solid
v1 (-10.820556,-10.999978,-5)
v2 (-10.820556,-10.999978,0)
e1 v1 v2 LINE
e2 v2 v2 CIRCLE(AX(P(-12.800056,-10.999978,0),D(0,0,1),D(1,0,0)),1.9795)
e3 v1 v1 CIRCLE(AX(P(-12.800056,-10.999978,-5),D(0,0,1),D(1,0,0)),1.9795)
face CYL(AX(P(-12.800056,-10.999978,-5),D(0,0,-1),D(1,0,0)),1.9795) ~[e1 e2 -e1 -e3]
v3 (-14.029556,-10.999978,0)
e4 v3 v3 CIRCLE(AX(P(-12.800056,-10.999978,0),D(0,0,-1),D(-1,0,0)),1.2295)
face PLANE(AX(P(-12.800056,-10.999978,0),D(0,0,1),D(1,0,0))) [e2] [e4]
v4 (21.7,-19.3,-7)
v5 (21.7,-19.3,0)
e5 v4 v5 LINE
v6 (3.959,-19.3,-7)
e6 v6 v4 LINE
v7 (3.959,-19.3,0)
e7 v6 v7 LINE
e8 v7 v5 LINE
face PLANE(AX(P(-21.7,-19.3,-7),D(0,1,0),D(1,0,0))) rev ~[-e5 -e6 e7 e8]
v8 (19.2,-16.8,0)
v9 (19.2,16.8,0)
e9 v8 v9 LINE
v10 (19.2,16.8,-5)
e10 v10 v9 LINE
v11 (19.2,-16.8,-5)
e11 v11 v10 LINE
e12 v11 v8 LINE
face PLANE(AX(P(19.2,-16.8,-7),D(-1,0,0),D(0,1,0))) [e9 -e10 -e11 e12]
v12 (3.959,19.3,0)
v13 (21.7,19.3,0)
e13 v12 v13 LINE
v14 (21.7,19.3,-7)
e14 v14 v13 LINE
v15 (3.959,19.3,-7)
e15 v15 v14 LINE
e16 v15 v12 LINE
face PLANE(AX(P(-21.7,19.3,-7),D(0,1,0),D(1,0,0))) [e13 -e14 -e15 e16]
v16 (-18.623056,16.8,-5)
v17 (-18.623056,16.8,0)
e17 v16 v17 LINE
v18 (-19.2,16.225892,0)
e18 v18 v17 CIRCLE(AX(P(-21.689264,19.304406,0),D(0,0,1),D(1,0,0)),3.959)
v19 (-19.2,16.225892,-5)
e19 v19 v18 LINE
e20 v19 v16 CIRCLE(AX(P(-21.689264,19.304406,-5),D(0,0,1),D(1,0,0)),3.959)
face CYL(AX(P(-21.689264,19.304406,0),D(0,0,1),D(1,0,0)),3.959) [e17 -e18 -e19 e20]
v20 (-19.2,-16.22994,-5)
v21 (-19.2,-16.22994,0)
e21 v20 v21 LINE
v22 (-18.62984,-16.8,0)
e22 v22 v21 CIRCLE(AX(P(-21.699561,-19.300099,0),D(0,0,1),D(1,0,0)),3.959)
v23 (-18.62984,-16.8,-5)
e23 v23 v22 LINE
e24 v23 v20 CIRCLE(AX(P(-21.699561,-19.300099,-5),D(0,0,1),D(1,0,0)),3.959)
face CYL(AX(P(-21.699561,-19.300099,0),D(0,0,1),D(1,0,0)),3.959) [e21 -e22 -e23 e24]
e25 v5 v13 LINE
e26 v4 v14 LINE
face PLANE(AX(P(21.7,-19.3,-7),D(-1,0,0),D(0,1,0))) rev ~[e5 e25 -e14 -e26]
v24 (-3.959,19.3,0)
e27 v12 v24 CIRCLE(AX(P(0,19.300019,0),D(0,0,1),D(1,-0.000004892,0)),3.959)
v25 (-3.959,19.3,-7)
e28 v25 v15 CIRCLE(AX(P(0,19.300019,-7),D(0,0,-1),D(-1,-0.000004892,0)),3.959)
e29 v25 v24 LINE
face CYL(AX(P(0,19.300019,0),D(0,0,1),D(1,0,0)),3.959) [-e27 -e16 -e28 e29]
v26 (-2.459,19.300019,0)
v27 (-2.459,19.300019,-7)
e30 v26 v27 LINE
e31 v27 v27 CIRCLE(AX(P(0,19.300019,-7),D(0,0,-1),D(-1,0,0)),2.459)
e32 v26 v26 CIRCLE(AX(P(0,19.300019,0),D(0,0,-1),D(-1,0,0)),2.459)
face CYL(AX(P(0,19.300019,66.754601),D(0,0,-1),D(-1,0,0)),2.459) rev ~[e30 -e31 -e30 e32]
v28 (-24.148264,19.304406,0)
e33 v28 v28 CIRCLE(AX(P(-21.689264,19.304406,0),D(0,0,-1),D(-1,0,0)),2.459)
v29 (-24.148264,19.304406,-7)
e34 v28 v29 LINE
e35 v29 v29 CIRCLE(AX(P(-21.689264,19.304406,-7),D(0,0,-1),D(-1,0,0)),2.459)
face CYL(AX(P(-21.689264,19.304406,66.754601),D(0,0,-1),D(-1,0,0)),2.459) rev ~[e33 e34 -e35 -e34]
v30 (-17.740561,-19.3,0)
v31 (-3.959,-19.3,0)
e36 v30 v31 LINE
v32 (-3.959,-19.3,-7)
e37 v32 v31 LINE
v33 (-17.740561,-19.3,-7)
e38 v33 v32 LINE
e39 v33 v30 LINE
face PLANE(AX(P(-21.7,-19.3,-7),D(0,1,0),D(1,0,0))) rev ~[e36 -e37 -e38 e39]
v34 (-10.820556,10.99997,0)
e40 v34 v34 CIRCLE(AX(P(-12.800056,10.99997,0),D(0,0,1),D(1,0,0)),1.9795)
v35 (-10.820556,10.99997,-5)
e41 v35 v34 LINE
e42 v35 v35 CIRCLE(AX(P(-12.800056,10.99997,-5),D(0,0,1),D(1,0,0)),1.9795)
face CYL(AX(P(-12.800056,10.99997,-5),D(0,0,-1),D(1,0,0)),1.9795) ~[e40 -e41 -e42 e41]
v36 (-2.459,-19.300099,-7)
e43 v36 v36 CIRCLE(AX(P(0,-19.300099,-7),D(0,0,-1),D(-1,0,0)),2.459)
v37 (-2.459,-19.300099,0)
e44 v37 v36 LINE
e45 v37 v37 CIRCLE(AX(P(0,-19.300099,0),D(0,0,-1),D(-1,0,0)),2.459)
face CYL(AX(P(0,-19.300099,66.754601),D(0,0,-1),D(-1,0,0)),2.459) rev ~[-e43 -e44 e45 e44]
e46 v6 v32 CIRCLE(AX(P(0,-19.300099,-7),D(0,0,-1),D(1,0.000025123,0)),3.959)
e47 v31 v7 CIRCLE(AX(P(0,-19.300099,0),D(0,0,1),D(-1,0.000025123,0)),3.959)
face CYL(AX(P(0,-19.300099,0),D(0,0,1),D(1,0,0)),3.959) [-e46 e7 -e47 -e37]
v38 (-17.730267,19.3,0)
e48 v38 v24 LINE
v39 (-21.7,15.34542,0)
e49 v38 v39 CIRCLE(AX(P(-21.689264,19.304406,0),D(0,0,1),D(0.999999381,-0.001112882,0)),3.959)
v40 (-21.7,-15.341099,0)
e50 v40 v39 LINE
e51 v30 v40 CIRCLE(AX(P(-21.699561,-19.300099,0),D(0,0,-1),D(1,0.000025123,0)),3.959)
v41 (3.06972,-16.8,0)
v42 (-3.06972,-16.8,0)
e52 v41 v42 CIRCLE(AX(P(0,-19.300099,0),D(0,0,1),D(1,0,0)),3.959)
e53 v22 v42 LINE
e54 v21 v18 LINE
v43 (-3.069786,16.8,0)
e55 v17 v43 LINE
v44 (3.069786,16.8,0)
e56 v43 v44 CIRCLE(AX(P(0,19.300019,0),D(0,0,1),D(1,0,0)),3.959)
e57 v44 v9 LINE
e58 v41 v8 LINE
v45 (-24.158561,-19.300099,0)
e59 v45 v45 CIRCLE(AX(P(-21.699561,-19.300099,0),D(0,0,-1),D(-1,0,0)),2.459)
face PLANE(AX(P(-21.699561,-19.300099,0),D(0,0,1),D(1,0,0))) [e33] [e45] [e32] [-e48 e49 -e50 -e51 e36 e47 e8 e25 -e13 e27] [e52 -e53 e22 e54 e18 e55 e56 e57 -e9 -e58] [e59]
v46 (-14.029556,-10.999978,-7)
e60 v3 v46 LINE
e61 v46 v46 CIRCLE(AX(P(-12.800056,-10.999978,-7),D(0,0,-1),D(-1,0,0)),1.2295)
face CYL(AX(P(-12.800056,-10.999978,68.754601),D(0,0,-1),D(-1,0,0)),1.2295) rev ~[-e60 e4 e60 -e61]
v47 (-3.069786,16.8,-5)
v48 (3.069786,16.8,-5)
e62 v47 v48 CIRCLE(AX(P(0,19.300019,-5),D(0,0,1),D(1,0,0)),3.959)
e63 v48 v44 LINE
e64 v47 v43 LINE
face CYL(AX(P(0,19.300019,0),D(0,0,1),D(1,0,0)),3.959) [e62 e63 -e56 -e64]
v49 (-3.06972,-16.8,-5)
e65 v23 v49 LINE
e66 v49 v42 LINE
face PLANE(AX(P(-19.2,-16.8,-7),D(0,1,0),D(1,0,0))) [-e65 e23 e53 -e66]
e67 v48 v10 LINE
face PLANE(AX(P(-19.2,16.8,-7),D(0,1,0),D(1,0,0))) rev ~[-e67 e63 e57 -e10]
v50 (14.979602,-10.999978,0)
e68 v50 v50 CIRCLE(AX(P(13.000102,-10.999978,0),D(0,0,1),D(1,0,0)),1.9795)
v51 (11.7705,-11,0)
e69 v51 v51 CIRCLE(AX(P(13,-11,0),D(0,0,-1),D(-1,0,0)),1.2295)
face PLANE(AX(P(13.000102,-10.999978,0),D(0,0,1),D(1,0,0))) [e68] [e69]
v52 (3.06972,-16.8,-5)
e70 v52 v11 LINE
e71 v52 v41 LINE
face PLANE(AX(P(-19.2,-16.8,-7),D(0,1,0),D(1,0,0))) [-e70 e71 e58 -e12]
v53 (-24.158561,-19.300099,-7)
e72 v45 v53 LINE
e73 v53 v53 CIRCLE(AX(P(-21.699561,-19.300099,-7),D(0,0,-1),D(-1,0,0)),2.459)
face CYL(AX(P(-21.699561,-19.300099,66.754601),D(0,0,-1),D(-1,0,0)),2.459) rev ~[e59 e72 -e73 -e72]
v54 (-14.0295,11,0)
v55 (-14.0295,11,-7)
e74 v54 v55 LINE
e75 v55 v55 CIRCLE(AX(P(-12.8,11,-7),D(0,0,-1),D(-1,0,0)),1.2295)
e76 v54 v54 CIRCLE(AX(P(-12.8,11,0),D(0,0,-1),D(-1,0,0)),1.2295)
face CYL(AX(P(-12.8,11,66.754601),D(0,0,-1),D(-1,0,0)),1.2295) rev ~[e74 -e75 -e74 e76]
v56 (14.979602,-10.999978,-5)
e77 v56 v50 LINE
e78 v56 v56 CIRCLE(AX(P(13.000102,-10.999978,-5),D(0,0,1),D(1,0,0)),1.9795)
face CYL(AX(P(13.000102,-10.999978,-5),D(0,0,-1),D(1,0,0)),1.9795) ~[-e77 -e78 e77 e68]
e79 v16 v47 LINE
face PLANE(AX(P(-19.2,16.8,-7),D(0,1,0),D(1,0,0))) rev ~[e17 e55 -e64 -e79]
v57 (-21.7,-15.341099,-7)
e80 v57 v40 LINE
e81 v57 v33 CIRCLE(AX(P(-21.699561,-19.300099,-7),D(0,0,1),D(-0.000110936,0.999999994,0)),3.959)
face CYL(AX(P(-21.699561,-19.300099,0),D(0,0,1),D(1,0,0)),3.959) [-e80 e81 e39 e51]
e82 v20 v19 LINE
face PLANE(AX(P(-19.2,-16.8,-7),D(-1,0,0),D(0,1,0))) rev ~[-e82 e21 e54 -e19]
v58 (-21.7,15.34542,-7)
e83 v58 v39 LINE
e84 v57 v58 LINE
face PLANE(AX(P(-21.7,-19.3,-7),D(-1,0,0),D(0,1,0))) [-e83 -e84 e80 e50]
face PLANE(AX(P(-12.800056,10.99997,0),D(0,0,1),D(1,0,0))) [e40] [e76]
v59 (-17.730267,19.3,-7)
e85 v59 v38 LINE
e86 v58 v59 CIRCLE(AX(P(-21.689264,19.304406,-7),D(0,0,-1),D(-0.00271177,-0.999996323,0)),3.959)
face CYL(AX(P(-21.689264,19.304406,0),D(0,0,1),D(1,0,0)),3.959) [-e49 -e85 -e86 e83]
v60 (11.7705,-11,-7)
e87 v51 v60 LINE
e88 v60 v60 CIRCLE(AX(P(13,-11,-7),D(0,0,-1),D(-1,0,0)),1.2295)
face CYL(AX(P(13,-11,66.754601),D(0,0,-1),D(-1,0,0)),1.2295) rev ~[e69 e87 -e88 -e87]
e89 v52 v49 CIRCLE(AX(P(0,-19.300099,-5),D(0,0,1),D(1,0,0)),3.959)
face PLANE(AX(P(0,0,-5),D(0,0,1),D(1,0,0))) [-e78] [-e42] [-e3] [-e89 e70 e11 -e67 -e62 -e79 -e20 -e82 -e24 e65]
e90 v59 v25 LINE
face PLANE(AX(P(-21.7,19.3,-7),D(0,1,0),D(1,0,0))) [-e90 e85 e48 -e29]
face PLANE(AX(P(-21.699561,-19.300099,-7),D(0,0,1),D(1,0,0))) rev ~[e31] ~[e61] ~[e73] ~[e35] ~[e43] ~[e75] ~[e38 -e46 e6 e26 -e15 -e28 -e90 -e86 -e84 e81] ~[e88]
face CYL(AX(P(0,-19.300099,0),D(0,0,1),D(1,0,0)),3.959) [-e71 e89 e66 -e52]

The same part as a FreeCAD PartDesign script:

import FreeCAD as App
import Part
import Sketcher
Q = App.Units.Quantity


def add_polygon(sketch, points):
    """Adds a closed chain of lines whose ends are joined by coincident constraints."""
    first, n = sketch.GeometryCount, len(points)
    for a, b in zip(points, points[1:] + points[:1]):
        sketch.addGeometry(Part.LineSegment(App.Vector(*a, 0), App.Vector(*b, 0)), False)
    for i in range(n):
        sketch.addConstraint(Sketcher.Constraint("Coincident", first + i, 2, first + (i + 1) % n, 1))

doc = App.newDocument("Part")
body = doc.addObject("PartDesign::Body", "Body")

# Sketch on XY plane
sketch1 = body.newObject("Sketcher::SketchObject", "Sketch")
sketch1.AttachmentSupport = (doc.getObject("XY_Plane"), [""])
sketch1.MapMode = "FlatFace"
add_polygon(sketch1, [(-22, 19), (-22, -19), (22, -19), (22, 19)])  # lines 0-3
sketch1.addConstraint([
    Sketcher.Constraint("Vertical", 0),
    Sketcher.Constraint("Horizontal", 1),
    Sketcher.Constraint("Vertical", 2),
    Sketcher.Constraint("Horizontal", 3),
    Sketcher.Constraint("Symmetric", 0, 2, 2, 2, -1, 1),
    Sketcher.Constraint("DistanceX", 1, 1, 1, 2, Q("43.4 mm")),
    Sketcher.Constraint("DistanceY", 0, 2, 0, 1, Q("38.6 mm")),
])
pad1 = body.newObject("PartDesign::Pad", "Pad")
pad1.Profile = sketch1
pad1.Length = 7

# Sketch on XY plane
sketch2 = body.newObject("Sketcher::SketchObject", "Sketch001")
sketch2.AttachmentSupport = (doc.getObject("XY_Plane"), [""])
sketch2.MapMode = "FlatFace"
add_polygon(sketch2, [(-19, 17), (-19, -17), (19, -17), (19, 17)])  # lines 0-3
sketch2.addConstraint([
    Sketcher.Constraint("Vertical", 0),
    Sketcher.Constraint("Horizontal", 1),
    Sketcher.Constraint("Vertical", 2),
    Sketcher.Constraint("Horizontal", 3),
    Sketcher.Constraint("Symmetric", 0, 2, 2, 2, -1, 1),
    Sketcher.Constraint("DistanceX", 1, 1, 1, 2, Q("38.4 mm")),
    Sketcher.Constraint("DistanceY", 0, 2, 0, 1, Q("33.6 mm")),
])
pocket1 = body.newObject("PartDesign::Pocket", "Pocket")
pocket1.Profile = sketch2
pocket1.Length = 7
pocket1.Reversed = True

# Sketch on XY plane
sketch3 = body.newObject("Sketcher::SketchObject", "Sketch002")
sketch3.AttachmentSupport = (doc.getObject("XY_Plane"), [""])
sketch3.MapMode = "FlatFace"
add_polygon(sketch3, [(-19, 17), (-19, -17), (19, -17), (19, 17)])  # lines 0-3
sketch3.addConstraint([
    Sketcher.Constraint("Vertical", 0),
    Sketcher.Constraint("Horizontal", 1),
    Sketcher.Constraint("Vertical", 2),
    Sketcher.Constraint("Horizontal", 3),
    Sketcher.Constraint("Symmetric", 0, 2, 2, 2, -1, 1),
    Sketcher.Constraint("DistanceX", 1, 1, 1, 2, Q("38.4 mm")),
    Sketcher.Constraint("DistanceY", 0, 2, 0, 1, Q("33.6 mm")),
])
pad2 = body.newObject("PartDesign::Pad", "Pad001")
pad2.Profile = sketch3
pad2.Length = 2

# Sketch on XY plane
sketch4 = body.newObject("Sketcher::SketchObject", "Sketch003")
sketch4.AttachmentSupport = (doc.getObject("XY_Plane"), [""])
sketch4.MapMode = "FlatFace"
sketch4.AttachmentOffset = App.Placement(App.Vector(0, 0, 2), App.Rotation())
sketch4.addGeometry([
    Part.Circle(App.Vector(-12.8, 11, 0), App.Vector(0, 0, 1), 2),
    Part.Circle(App.Vector(13, -11, 0), App.Vector(0, 0, 1), 2),
    Part.Circle(App.Vector(-12.8, -11, 0), App.Vector(0, 0, 1), 2),
], False)
sketch4.addConstraint([
    Sketcher.Constraint("Equal", 0, 1),
    Sketcher.Constraint("Equal", 1, 2),
    Sketcher.Constraint("Symmetric", 0, 3, 2, 3, -1),
    Sketcher.Constraint("Horizontal", 1, 3, 2, 3),
    Sketcher.Constraint("Diameter", 0, Q("3.959 mm")),
    Sketcher.Constraint("DistanceX", -1, 1, 1, 3, Q("13.000102 mm")),
    Sketcher.Constraint("DistanceY", -1, 1, 0, 3, Q("10.99997 mm")),
    Sketcher.Constraint("DistanceX", 0, 3, 1, 3, Q("25.800158 mm")),
])
pad3 = body.newObject("PartDesign::Pad", "Pad002")
pad3.Profile = sketch4
pad3.Length = 5
body2 = doc.addObject("PartDesign::Body", "Body001")
doc.recompute()

body.Placement = App.Placement(App.Vector(0, 0, -7), App.Rotation(App.Vector(0, 0, 1), 0))
boolean = body2.newObject("PartDesign::Boolean", "Boolean")
boolean.Type = "Fuse"
boolean.addObjects([body])

# Sketch on XY plane
sketch5 = body2.newObject("Sketcher::SketchObject", "Sketch004")
sketch5.AttachmentSupport = (doc.getObject("XY_Plane001"), [""])
sketch5.MapMode = "FlatFace"
sketch5.addGeometry([
    Part.Circle(App.Vector(-21.7, -19.3, 0), App.Vector(0, 0, 1), 4),
    Part.Circle(App.Vector(0, -19.3, 0), App.Vector(0, 0, 1), 4),
    Part.Circle(App.Vector(0, 19.3, 0), App.Vector(0, 0, 1), 4),
    Part.Circle(App.Vector(-21.7, 19.3, 0), App.Vector(0, 0, 1), 4),
], False)
sketch5.addConstraint([
    Sketcher.Constraint("Equal", 0, 1),
    Sketcher.Constraint("Equal", 1, 2),
    Sketcher.Constraint("Equal", 2, 3),
    Sketcher.Constraint("PointOnObject", 1, 3, -2),
    Sketcher.Constraint("PointOnObject", 2, 3, -2),
    Sketcher.Constraint("Horizontal", 0, 3, 1, 3),
    Sketcher.Constraint("Diameter", 0, Q("7.918 mm")),
    Sketcher.Constraint("DistanceY", 0, 3, -1, 1, Q("19.300099 mm")),
    Sketcher.Constraint("DistanceX", 0, 3, -1, 1, Q("21.699561 mm")),
    Sketcher.Constraint("DistanceY", -1, 1, 2, 3, Q("19.300019 mm")),
    Sketcher.Constraint("DistanceX", 3, 3, -1, 1, Q("21.689264 mm")),
    Sketcher.Constraint("DistanceY", -1, 1, 3, 3, Q("19.304406 mm")),
])
pad4 = body2.newObject("PartDesign::Pad", "Pad003")
pad4.Profile = sketch5
pad4.Length = 7
pad4.Reversed = True

# Sketch on XY plane
sketch6 = body2.newObject("Sketcher::SketchObject", "Sketch005")
sketch6.AttachmentSupport = (doc.getObject("XY_Plane001"), [""])
sketch6.MapMode = "FlatFace"
sketch6.addGeometry([
    Part.Circle(App.Vector(-21.7, 19.3, 0), App.Vector(0, 0, 1), 2.5),
    Part.Circle(App.Vector(0, 19.3, 0), App.Vector(0, 0, 1), 2.5),
    Part.Circle(App.Vector(0, -19.3, 0), App.Vector(0, 0, 1), 2.5),
    Part.Circle(App.Vector(-21.7, -19.3, 0), App.Vector(0, 0, 1), 2.5),
], False)
sketch6.addConstraint([
    Sketcher.Constraint("Equal", 0, 1),
    Sketcher.Constraint("Equal", 1, 2),
    Sketcher.Constraint("Equal", 2, 3),
    Sketcher.Constraint("PointOnObject", 1, 3, -2),
    Sketcher.Constraint("PointOnObject", 2, 3, -2),
    Sketcher.Constraint("Horizontal", 2, 3, 3, 3),
    Sketcher.Constraint("Diameter", 0, Q("4.918 mm")),
    Sketcher.Constraint("DistanceY", 2, 3, -1, 1, Q("19.300099 mm")),
    Sketcher.Constraint("DistanceY", -1, 1, 1, 3, Q("19.300019 mm")),
    Sketcher.Constraint("DistanceX", 3, 3, -1, 1, Q("21.699561 mm")),
    Sketcher.Constraint("DistanceX", 0, 3, -1, 1, Q("21.689264 mm")),
    Sketcher.Constraint("DistanceY", -1, 1, 0, 3, Q("19.304406 mm")),
])
doc.recompute()
hole = body2.newObject("PartDesign::Hole", "Hole")
hole.Profile = sketch6
hole.ThreadType = "None"
hole.Diameter = 4.918
hole.DepthType = "ThroughAll"

# Sketch on XY plane
sketch7 = body2.newObject("Sketcher::SketchObject", "Sketch006")
sketch7.AttachmentSupport = (doc.getObject("XY_Plane001"), [""])
sketch7.MapMode = "FlatFace"
sketch7.addGeometry([
    Part.Circle(App.Vector(-12.8, 11, 0), App.Vector(0, 0, 1), 1.2),
    Part.Circle(App.Vector(13, -11, 0), App.Vector(0, 0, 1), 1.2),
], False)
sketch7.addConstraint([
    Sketcher.Constraint("Equal", 0, 1),
    Sketcher.Constraint("Diameter", 0, Q("2.459 mm")),
    Sketcher.Constraint("DistanceY", -1, 1, 0, 3, Q("11 mm")),
    Sketcher.Constraint("DistanceX", -1, 1, 1, 3, Q("13 mm")),
    Sketcher.Constraint("DistanceY", 1, 3, -1, 1, Q("11 mm")),
    Sketcher.Constraint("DistanceX", 0, 3, -1, 1, Q("12.8 mm")),
])
doc.recompute()
hole2 = body2.newObject("PartDesign::Hole", "Hole001")
hole2.Profile = sketch7
hole2.ThreadType = "None"
hole2.Diameter = 2.459
hole2.DepthType = "ThroughAll"

# Sketch on XY plane
sketch8 = body2.newObject("Sketcher::SketchObject", "Sketch007")
sketch8.AttachmentSupport = (doc.getObject("XY_Plane001"), [""])
sketch8.MapMode = "FlatFace"
sketch8.AttachmentOffset = App.Placement(App.Vector(0, 0, 2), App.Rotation())
sketch8.addGeometry(Part.Circle(App.Vector(-12.8, -11, 0), App.Vector(0, 0, 1), 1.2), False)
sketch8.addConstraint([
    Sketcher.Constraint("Diameter", 0, Q("2.459 mm")),
    Sketcher.Constraint("DistanceX", 0, 3, -1, 1, Q("12.800056 mm")),
    Sketcher.Constraint("DistanceY", 0, 3, -1, 1, Q("10.999978 mm")),
])
doc.recompute()
hole3 = body2.newObject("PartDesign::Hole", "Hole002")
hole3.Profile = sketch8
hole3.ThreadType = "None"
hole3.Diameter = 2.459
hole3.DepthType = "ThroughAll"

doc.recompute()
